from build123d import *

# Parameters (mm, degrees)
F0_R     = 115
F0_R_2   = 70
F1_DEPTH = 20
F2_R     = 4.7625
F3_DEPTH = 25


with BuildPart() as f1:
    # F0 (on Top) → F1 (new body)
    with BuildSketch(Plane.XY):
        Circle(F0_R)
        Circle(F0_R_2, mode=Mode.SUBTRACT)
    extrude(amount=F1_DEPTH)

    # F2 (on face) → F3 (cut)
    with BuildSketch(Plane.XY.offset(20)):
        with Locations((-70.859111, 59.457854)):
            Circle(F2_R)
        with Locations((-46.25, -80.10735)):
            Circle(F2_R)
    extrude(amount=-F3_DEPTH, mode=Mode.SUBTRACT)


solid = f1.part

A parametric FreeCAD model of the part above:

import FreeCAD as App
import Part
import Sketcher
from FreeCAD import Vector

doc = App.newDocument("Part")
body = doc.addObject("PartDesign::Body", "Body")

sketch1 = body.newObject("Sketcher::SketchObject", "Sketch")
sketch1.AttachmentSupport = (doc.getObject("XY_Plane"), [""])
sketch1.MapMode = "FlatFace"
sketch1.addGeometry(Part.Circle(Vector(0, 0, 0), Vector(0, 0, 1), 115), False)
sketch1.addGeometry(Part.Circle(Vector(0, 0, 0), Vector(0, 0, 1), 70), False)
sketch1.addConstraint(Sketcher.Constraint("Coincident", 0, 3, -1, 1))
sketch1.addConstraint(Sketcher.Constraint("Coincident", 1, 3, -1, 1))
sketch1.addConstraint(Sketcher.Constraint("Diameter", 0, 230.0))
sketch1.addConstraint(Sketcher.Constraint("Diameter", 1, 140.0))
pad1 = body.newObject("PartDesign::Pad", "Pad")
pad1.Profile = sketch1
pad1.Length = 20

sketch2 = body.newObject("Sketcher::SketchObject", "Sketch001")
sketch2.AttachmentSupport = (doc.getObject("XY_Plane"), [""])
sketch2.MapMode = "FlatFace"
sketch2.AttachmentOffset = App.Placement(Vector(0, 0, 20), App.Rotation())
sketch2.addGeometry(Part.Circle(Vector(-70.9, 59.5, 0), Vector(0, 0, 1), 4.8), False)
sketch2.addGeometry(Part.Circle(Vector(-46.2, -80.1, 0), Vector(0, 0, 1), 4.8), False)
sketch2.addConstraint(Sketcher.Constraint("Equal", 0, 1))
sketch2.addConstraint(Sketcher.Constraint("Diameter", 0, 9.525))
sketch2.addConstraint(Sketcher.Constraint("DistanceX", 1, 3, -1, 1, 46.25))
sketch2.addConstraint(Sketcher.Constraint("DistanceX", 0, 3, -1, 1, 70.859111))
sketch2.addConstraint(Sketcher.Constraint("DistanceY", 1, 3, -1, 1, 80.10735))
sketch2.addConstraint(Sketcher.Constraint("DistanceY", -1, 1, 0, 3, 59.457854))
pocket1 = body.newObject("PartDesign::Pocket", "Pocket")
pocket1.Profile = sketch2
pocket1.Length = 25

doc.recompute()
